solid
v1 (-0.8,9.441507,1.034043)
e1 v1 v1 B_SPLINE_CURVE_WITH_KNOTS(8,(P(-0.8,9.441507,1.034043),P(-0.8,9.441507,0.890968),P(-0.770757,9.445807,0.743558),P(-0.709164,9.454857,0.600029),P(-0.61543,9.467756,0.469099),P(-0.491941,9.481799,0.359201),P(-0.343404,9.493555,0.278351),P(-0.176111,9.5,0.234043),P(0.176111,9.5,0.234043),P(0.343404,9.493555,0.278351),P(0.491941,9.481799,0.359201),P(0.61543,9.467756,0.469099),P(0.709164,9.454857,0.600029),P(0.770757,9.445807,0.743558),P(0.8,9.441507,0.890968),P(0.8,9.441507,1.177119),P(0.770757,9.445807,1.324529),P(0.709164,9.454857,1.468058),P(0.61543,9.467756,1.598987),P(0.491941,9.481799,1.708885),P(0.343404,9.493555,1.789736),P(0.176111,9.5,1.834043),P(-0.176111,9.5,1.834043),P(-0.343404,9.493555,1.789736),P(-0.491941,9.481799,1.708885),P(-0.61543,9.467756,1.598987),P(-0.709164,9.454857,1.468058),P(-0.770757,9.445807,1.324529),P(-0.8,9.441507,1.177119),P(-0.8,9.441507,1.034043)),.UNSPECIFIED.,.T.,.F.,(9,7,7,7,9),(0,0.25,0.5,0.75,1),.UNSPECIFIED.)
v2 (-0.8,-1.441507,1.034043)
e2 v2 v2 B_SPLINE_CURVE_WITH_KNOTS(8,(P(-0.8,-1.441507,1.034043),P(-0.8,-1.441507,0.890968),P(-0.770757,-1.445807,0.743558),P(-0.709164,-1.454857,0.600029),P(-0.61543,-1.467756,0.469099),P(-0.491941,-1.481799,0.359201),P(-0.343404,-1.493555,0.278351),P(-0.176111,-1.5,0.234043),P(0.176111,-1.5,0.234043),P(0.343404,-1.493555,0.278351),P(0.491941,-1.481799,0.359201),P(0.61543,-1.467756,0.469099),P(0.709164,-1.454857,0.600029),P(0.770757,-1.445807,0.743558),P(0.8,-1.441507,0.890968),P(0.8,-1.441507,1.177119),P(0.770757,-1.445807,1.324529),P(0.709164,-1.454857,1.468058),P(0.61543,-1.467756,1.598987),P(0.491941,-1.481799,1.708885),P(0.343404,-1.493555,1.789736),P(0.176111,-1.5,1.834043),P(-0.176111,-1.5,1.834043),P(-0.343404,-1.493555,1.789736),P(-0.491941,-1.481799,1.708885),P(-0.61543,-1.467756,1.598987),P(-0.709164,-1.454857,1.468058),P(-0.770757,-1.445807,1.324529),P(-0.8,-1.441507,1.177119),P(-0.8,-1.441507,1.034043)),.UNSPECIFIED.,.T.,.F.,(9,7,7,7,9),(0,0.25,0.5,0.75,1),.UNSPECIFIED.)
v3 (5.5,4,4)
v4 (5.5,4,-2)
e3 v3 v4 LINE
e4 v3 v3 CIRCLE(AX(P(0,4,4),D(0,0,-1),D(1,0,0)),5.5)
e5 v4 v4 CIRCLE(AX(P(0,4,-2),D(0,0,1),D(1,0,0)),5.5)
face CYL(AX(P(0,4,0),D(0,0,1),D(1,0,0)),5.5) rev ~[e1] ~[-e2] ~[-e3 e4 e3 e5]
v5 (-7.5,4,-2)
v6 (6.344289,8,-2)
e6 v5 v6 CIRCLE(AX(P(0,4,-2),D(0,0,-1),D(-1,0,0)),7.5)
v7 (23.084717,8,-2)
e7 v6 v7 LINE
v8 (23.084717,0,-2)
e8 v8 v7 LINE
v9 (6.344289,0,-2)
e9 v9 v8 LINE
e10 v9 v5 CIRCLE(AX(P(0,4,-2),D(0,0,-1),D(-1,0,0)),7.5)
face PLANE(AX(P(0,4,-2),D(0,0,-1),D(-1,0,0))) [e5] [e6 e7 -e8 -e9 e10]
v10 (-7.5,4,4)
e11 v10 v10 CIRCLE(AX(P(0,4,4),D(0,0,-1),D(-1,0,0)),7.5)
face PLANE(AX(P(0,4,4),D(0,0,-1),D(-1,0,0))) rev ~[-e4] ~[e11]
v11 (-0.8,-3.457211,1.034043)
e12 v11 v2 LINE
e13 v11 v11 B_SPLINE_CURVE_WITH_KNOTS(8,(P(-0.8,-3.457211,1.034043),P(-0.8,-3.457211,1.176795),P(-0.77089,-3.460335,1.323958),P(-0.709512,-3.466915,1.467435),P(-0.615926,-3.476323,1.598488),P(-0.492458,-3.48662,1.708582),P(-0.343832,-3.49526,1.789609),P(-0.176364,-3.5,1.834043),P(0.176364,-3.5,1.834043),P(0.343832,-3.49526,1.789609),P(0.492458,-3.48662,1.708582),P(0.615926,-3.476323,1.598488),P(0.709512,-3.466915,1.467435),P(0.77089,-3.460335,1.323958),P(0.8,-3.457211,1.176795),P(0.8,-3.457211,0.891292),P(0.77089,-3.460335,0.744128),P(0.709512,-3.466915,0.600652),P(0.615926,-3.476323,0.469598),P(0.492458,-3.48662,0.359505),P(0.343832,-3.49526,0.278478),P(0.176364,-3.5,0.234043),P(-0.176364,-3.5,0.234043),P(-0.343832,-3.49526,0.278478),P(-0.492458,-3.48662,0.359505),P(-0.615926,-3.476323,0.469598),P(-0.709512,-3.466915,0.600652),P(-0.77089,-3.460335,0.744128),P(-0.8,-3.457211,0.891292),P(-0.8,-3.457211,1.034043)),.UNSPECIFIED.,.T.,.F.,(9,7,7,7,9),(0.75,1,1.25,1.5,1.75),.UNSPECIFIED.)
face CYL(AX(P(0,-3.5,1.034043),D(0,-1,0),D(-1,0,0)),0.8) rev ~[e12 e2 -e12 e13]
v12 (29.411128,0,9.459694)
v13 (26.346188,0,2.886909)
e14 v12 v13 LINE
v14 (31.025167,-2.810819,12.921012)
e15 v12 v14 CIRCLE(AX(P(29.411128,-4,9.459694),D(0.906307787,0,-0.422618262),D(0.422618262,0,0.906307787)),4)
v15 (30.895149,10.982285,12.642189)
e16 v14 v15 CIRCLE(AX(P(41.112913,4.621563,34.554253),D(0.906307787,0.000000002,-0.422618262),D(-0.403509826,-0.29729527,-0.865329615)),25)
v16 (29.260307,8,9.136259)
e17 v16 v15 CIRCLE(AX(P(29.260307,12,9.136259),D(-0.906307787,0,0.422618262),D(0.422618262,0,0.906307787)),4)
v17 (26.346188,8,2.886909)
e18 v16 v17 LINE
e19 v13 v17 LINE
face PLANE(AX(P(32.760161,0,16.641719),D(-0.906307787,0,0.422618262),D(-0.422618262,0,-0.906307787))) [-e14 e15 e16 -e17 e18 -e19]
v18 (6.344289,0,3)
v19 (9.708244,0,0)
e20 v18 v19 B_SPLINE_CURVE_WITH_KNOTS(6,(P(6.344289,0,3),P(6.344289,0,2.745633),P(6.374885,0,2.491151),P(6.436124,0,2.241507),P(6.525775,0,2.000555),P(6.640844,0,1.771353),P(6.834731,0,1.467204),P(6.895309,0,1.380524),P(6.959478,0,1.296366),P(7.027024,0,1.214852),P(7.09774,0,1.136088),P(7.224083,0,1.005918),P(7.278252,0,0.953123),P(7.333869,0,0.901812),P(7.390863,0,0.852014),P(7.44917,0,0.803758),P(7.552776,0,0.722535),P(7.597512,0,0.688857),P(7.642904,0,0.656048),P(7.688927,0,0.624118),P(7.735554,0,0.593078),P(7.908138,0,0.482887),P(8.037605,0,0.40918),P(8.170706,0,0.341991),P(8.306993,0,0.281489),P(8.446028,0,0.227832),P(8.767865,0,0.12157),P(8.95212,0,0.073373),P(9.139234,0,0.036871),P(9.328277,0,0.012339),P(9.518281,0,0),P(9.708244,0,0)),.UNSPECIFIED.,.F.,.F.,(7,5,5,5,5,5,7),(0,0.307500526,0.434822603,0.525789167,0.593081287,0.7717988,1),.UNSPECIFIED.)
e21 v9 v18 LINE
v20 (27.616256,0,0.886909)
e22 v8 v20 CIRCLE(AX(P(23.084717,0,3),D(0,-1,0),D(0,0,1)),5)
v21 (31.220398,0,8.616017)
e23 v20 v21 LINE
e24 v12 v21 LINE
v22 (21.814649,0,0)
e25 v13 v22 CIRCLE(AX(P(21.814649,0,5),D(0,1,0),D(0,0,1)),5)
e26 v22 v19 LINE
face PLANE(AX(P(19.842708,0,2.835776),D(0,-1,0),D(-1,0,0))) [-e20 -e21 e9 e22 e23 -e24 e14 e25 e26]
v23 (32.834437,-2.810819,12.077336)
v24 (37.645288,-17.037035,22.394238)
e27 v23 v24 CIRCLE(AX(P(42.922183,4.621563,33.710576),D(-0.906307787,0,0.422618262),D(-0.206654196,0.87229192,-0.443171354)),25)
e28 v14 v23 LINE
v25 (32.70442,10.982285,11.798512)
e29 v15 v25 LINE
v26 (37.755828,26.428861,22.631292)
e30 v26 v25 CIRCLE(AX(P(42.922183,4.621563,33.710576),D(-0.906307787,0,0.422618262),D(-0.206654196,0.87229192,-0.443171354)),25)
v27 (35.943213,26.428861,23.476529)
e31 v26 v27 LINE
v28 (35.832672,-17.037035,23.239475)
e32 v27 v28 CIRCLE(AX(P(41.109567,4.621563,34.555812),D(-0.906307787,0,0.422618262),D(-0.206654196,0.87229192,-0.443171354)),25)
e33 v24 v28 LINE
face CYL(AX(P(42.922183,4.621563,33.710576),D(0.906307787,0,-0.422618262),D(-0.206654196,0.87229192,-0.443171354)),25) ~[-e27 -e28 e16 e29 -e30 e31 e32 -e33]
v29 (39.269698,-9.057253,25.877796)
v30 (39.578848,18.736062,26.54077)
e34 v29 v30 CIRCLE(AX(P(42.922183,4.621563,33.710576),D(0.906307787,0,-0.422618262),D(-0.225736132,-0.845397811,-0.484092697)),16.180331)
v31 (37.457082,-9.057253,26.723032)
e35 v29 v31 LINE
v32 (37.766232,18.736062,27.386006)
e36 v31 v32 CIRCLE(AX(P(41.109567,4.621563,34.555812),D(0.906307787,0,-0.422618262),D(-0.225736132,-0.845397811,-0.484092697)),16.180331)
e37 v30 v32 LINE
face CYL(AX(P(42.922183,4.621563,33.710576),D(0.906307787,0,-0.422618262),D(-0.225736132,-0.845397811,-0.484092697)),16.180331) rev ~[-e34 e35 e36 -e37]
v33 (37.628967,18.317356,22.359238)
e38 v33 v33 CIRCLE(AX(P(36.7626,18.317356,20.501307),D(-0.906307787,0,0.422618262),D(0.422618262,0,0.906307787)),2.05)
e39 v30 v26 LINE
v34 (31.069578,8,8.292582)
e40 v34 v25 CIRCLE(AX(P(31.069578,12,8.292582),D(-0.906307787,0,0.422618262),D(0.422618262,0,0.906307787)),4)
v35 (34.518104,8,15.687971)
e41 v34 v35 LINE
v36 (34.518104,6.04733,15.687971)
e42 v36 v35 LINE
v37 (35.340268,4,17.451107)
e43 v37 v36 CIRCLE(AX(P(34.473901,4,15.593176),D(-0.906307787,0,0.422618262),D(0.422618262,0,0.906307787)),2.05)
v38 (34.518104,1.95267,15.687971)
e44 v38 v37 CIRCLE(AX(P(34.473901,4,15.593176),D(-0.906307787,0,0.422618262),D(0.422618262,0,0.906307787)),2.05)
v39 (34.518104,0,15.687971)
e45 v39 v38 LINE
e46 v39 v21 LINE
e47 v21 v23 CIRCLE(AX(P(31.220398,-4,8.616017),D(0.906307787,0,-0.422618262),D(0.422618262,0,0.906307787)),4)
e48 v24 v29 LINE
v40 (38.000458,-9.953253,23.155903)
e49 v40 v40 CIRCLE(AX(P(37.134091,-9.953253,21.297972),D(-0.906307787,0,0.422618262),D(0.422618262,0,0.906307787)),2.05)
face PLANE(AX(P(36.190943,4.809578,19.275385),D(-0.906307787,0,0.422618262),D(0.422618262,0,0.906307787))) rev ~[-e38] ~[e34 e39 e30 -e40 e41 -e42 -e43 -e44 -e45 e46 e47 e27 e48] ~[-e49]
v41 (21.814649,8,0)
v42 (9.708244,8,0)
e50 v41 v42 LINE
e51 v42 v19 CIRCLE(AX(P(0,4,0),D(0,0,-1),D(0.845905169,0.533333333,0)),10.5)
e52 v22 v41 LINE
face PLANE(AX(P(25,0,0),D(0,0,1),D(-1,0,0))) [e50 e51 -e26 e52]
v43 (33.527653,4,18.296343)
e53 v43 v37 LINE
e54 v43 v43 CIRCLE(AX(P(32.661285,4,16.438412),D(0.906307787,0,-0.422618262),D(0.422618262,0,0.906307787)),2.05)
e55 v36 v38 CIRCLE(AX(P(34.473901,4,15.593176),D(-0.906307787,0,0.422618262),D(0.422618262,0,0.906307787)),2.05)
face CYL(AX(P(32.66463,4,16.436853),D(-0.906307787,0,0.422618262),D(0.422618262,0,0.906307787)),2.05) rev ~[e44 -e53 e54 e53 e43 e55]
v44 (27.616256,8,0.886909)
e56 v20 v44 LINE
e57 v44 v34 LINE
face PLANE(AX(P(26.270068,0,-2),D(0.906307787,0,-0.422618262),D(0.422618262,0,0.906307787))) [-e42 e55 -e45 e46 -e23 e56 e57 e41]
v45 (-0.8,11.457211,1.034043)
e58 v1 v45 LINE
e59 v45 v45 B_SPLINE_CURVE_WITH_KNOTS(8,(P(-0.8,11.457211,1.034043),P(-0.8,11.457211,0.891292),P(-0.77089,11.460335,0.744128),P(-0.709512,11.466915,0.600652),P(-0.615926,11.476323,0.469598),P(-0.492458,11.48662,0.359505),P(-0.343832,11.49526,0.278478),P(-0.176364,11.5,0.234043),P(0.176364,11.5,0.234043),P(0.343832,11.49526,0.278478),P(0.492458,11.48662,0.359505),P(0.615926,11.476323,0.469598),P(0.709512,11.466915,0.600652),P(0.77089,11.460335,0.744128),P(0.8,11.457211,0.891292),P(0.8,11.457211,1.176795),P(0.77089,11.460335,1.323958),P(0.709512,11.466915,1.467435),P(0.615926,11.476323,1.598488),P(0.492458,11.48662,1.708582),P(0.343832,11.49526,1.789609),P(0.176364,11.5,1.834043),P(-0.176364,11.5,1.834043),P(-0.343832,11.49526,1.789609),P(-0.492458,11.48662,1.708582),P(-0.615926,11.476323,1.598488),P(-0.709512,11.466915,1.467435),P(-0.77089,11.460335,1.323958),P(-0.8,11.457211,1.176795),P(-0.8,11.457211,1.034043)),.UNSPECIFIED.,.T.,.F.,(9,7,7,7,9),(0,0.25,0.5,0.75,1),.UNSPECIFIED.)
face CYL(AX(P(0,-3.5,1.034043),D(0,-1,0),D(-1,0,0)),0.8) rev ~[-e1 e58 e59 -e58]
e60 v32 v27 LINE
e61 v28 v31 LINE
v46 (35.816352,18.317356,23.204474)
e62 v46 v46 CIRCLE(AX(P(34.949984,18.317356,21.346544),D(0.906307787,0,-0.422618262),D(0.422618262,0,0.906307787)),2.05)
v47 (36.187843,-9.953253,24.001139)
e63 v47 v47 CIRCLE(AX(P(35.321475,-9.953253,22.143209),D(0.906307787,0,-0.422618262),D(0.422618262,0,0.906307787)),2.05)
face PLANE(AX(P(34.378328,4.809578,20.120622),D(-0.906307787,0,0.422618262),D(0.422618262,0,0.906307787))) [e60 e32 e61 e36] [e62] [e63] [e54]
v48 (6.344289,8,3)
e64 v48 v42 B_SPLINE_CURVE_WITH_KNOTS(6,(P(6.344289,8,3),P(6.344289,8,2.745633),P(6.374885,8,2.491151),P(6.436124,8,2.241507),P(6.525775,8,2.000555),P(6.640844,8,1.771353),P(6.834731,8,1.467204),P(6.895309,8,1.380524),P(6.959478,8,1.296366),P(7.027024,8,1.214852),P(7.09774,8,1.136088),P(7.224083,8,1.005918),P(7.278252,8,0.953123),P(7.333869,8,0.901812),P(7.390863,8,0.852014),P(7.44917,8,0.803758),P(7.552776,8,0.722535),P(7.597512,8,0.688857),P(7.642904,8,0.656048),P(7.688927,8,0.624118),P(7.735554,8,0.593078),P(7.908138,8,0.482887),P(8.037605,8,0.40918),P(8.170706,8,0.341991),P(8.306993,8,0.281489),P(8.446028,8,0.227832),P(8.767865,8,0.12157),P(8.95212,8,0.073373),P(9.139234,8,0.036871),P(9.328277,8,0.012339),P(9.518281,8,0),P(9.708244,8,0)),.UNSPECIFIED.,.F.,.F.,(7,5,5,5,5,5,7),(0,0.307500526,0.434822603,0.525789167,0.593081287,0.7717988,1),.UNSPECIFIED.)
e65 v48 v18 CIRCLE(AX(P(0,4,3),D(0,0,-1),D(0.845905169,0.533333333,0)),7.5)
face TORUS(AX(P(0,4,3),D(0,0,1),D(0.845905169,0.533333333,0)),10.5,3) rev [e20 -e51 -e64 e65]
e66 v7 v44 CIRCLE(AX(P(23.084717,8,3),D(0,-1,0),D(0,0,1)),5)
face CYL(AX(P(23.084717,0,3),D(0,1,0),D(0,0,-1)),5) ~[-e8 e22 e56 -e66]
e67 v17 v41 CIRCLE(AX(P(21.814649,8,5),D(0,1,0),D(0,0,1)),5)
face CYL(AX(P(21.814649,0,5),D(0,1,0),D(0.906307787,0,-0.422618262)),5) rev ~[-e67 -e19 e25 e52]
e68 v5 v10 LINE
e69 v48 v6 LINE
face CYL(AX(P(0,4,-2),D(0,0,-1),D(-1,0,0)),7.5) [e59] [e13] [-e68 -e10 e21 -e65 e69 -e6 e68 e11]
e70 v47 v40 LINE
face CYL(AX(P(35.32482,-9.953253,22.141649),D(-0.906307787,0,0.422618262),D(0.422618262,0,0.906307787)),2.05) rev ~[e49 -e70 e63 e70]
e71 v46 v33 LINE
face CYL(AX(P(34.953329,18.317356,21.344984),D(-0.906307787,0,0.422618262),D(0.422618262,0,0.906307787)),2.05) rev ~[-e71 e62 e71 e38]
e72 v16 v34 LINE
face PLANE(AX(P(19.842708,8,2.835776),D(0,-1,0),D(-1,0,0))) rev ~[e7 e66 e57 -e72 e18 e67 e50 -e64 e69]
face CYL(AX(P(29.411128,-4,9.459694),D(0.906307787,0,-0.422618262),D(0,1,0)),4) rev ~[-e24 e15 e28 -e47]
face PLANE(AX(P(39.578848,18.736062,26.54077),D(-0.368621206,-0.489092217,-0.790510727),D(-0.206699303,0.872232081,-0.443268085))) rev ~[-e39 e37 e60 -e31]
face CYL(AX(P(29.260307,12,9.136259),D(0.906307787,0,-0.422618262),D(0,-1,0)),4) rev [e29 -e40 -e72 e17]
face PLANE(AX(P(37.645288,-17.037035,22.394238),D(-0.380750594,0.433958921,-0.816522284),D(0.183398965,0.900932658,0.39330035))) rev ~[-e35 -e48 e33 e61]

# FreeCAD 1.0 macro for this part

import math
import FreeCAD as App
import Part
import Sketcher
from FreeCAD import Vector
Q = App.Units.Quantity


def edges_at(feature, points):
    """Names of the edges that pass closest to the given points."""
    edges = feature.Shape.Edges
    near = lambda p: min(range(len(edges)), key=lambda i: edges[i].distToShape(Part.Vertex(*p))[0])
    return sorted({f"Edge{near(p) + 1}" for p in points})


def add_polygon(sketch, points):
    """Adds a closed chain of lines whose ends are joined by coincident constraints."""
    first, n = sketch.GeometryCount, len(points)
    for a, b in zip(points, points[1:] + points[:1]):
        sketch.addGeometry(Part.LineSegment(App.Vector(*a, 0), App.Vector(*b, 0)), False)
    for i in range(n):
        sketch.addConstraint(Sketcher.Constraint("Coincident", first + i, 2, first + (i + 1) % n, 1))

doc = App.newDocument("Part")
body = doc.addObject("PartDesign::Body", "Body")

# Sketch on XZ plane
sketch1 = body.newObject("Sketcher::SketchObject", "Sketch")
sketch1.AttachmentSupport = (doc.getObject("XZ_Plane"), [""])
sketch1.MapMode = "FlatFace"
add_polygon(sketch1, [(0, -2), (0, 0), (25, 0), (32.8, 16.6), (34.5, 15.7), (26.3, -2)])  # lines 0-5
sketch1.addConstraint([
    Sketcher.Constraint("Vertical", 0),
    Sketcher.Constraint("Horizontal", 1),
    Sketcher.Constraint("Horizontal", 5),
    Sketcher.Constraint("Coincident", 0, 2, -1, 1),
    Sketcher.Constraint("Parallel", 2, 4),
    Sketcher.Constraint("DistanceX", 1, 1, 1, 2, Q("25 mm")),
    Sketcher.Constraint("DistanceY", 0, 1, 0, 2, Q("2 mm")),
    Sketcher.Constraint("Angle", 2, Q("65 deg")),
    Sketcher.Constraint("Distance", 3, Q("2 mm")),
    Sketcher.Constraint("DistanceX", 5, 2, 5, 1, Q("26.270068 mm")),
    Sketcher.Constraint("DistanceX", -1, 1, 2, 2, Q("32.760161 mm")),
])
pad1 = body.newObject("PartDesign::Pad", "Pad")
pad1.Profile = sketch1
pad1.Length = 8
pad1.Reversed = True
doc.recompute()

fillet = body.newObject("PartDesign::Fillet", "Fillet")
fillet.Base = (pad1, edges_at(pad1, [(26.27, 4, -2), (25, 4, 0)]))
fillet.Radius = 5

# Sketch on an angled plane
sketch2 = body.newObject("Sketcher::SketchObject", "Sketch001")
sketch2.Placement = App.Placement(Vector(22.344116, 0, -10.419232), App.Rotation(Vector(-0.422618262, 0, -0.906307787), Vector(0, 1, 0), Vector(0.906307787, 0, -0.422618262), "ZXY"))
sketch2.addGeometry([
    Part.LineSegment(Vector(-36, 26, 0), Vector(-41, 19, 0)),
    Part.ArcOfCircle(Part.Circle(Vector(-49, 5, 0), Vector(0, 0, 1), 16), math.radians(-58), math.radians(61)),
    Part.LineSegment(Vector(-40, -9, 0), Vector(-36, -17, 0)),
    Part.ArcOfCircle(Part.Circle(Vector(-49, 5, 0), Vector(0, 0, 1), 25), math.radians(-60), math.radians(61)),
], False)
sketch2.addConstraint([
    Sketcher.Constraint("Coincident", 0, 2, 1, 2),
    Sketcher.Constraint("Coincident", 1, 1, 2, 1),
    Sketcher.Constraint("Coincident", 2, 2, 3, 1),
    Sketcher.Constraint("Coincident", 3, 2, 0, 1),
    Sketcher.Constraint("Coincident", 3, 3, 1, 3),
    Sketcher.Constraint("Radius", 3, Q("25 mm")),
    Sketcher.Constraint("Radius", 1, Q("16.180331 mm")),
    Sketcher.Constraint("DistanceY", 3, 3, 0, 2, Q("14.1145 mm")),
    Sketcher.Constraint("DistanceY", 2, 2, 3, 3, Q("21.658598 mm")),
    Sketcher.Constraint("DistanceY", 0, 2, 3, 2, Q("7.692798 mm")),
    Sketcher.Constraint("DistanceX", 0, 2, -1, 1, Q("40.78085 mm")),
    Sketcher.Constraint("DistanceX", 1, 1, -1, 1, Q("40.049339 mm")),
    Sketcher.Constraint("DistanceY", -1, 1, 3, 2, Q("26.428861 mm")),
])
pad2 = body.newObject("PartDesign::Pad", "Pad001")
pad2.Profile = sketch2
pad2.Length = 2
pad2.Reversed = True

# Sketch on an angled plane
sketch3 = body.newObject("Sketcher::SketchObject", "Sketch002")
sketch3.Placement = App.Placement(Vector(20.534845, 0, -9.575556), App.Rotation(Vector(0.422618262, 0, 0.906307787), Vector(0, 1, 0), Vector(-0.906307787, 0, 0.422618262), "ZXY"))
sketch3.addGeometry([
    Part.Circle(Vector(28.7, 4, 0), Vector(0, 0, 1), 2),  # 0
    Part.Circle(Vector(34.1, 18.3, 0), Vector(0, 0, 1), 2),  # 1
    Part.Circle(Vector(48.1, 24.6, 0), Vector(0, 0, 1), 2),  # 2
    Part.Circle(Vector(62.4, 19.2, 0), Vector(0, 0, 1), 2),  # 3
    Part.Circle(Vector(68.7, 5.2, 0), Vector(0, 0, 1), 2),  # 4
    Part.Circle(Vector(63.3, -9.1, 0), Vector(0, 0, 1), 2),  # 5
    Part.Circle(Vector(49.3, -15.4, 0), Vector(0, 0, 1), 2),  # 6
    Part.Circle(Vector(35, -10, 0), Vector(0, 0, 1), 2),  # 7
], False)
sketch3.addConstraint([
    Sketcher.Constraint("Equal", 0, 1),
    Sketcher.Constraint("Equal", 1, 2),
    Sketcher.Constraint("Equal", 2, 3),
    Sketcher.Constraint("Equal", 3, 4),
    Sketcher.Constraint("Equal", 4, 5),
    Sketcher.Constraint("Equal", 5, 6),
    Sketcher.Constraint("Equal", 6, 7),
    Sketcher.Constraint("Diameter", 0, Q("4.1 mm")),
    Sketcher.Constraint("DistanceY", -1, 1, 0, 3, Q("4 mm")),
    Sketcher.Constraint("DistanceY", -1, 1, 2, 3, Q("24.611902 mm")),
    Sketcher.Constraint("DistanceX", 2, 3, 4, 3, Q("20.611902 mm")),
    Sketcher.Constraint("DistanceY", 6, 3, 4, 3, Q("20.611902 mm")),
    Sketcher.Constraint("DistanceX", 0, 3, 6, 3, Q("20.611902 mm")),
    Sketcher.Constraint("DistanceX", -1, 1, 1, 3, Q("34.11704 mm")),
    Sketcher.Constraint("DistanceX", -1, 1, 3, 3, Q("62.387649 mm")),
    Sketcher.Constraint("DistanceY", -1, 1, 3, 3, Q("19.196378 mm")),
    Sketcher.Constraint("DistanceX", -1, 1, 5, 3, Q("63.266672 mm")),
    Sketcher.Constraint("DistanceY", 5, 3, -1, 1, Q("9.07423 mm")),
    Sketcher.Constraint("DistanceX", -1, 1, 6, 3, Q("49.313419 mm")),
    Sketcher.Constraint("DistanceY", 4, 3, 1, 3, Q("13.07423 mm")),
    Sketcher.Constraint("DistanceX", 0, 3, 4, 3, Q("39.980678 mm")),
    Sketcher.Constraint("DistanceX", 7, 3, 5, 3, Q("28.270609 mm")),
    Sketcher.Constraint("DistanceY", 7, 3, 1, 3, Q("28.270609 mm")),
    Sketcher.Constraint("DistanceY", -1, 1, 1, 3, Q("18.317356 mm")),
])
pocket1 = body.newObject("PartDesign::Pocket", "Pocket")
pocket1.Profile = sketch3
pocket1.Type = "ThroughAll"
pocket1.Midplane = True
doc.recompute()

fillet2 = body.newObject("PartDesign::Fillet", "Fillet001")
fillet2.Base = (pocket1, edges_at(pocket1, [(31.634, 0, 11.865), (31.549, 8, 11.683)]))
fillet2.Radius = 4

# Sketch on XY plane
sketch4 = body.newObject("Sketcher::SketchObject", "Sketch003")
sketch4.AttachmentSupport = (doc.getObject("XY_Plane"), [""])
sketch4.MapMode = "FlatFace"
sketch4.AttachmentOffset = App.Placement(Vector(0, 0, -2), App.Rotation())
sketch4.addGeometry(Part.Circle(Vector(0, 4, 0), Vector(0, 0, 1), 8), False)
sketch4.addConstraint([
    Sketcher.Constraint("PointOnObject", 0, 3, -2),
    Sketcher.Constraint("Diameter", 0, Q("15 mm")),
    Sketcher.Constraint("DistanceY", -1, 1, 0, 3, Q("4 mm")),
])
pad3 = body.newObject("PartDesign::Pad", "Pad002")
pad3.Profile = sketch4
pad3.Length = 6

# Sketch on XY plane
sketch5 = body.newObject("Sketcher::SketchObject", "Sketch004")
sketch5.AttachmentSupport = (doc.getObject("XY_Plane"), [""])
sketch5.MapMode = "FlatFace"
sketch5.addGeometry(Part.Circle(Vector(0, 4, 0), Vector(0, 0, 1), 6), False)
sketch5.addConstraint([
    Sketcher.Constraint("PointOnObject", 0, 3, -2),
    Sketcher.Constraint("Diameter", 0, Q("11 mm")),
    Sketcher.Constraint("DistanceY", -1, 1, 0, 3, Q("4 mm")),
])
pocket2 = body.newObject("PartDesign::Pocket", "Pocket001")
pocket2.Profile = sketch5
pocket2.Type = "ThroughAll"
pocket2.Midplane = True

# Sketch on XZ plane
sketch6 = body.newObject("Sketcher::SketchObject", "Sketch005")
sketch6.AttachmentSupport = (doc.getObject("XZ_Plane"), [""])
sketch6.MapMode = "FlatFace"
sketch6.AttachmentOffset = App.Placement(Vector(0, 0, 3.5), App.Rotation())
sketch6.addGeometry(Part.Circle(Vector(0, 1, 0), Vector(0, 0, 1), 0.8), False)
sketch6.addConstraint([
    Sketcher.Constraint("PointOnObject", 0, 3, -2),
    Sketcher.Constraint("Diameter", 0, Q("1.6 mm")),
    Sketcher.Constraint("DistanceY", -1, 1, 0, 3, Q("1.034043 mm")),
])
pocket3 = body.newObject("PartDesign::Pocket", "Pocket002")
pocket3.Profile = sketch6
pocket3.Type = "ThroughAll"
doc.recompute()

fillet3 = body.newObject("PartDesign::Fillet", "Fillet002")
fillet3.Base = (pocket3, edges_at(pocket3, [(7.5, 4, 0)]))
fillet3.Radius = 3

doc.recompute()
